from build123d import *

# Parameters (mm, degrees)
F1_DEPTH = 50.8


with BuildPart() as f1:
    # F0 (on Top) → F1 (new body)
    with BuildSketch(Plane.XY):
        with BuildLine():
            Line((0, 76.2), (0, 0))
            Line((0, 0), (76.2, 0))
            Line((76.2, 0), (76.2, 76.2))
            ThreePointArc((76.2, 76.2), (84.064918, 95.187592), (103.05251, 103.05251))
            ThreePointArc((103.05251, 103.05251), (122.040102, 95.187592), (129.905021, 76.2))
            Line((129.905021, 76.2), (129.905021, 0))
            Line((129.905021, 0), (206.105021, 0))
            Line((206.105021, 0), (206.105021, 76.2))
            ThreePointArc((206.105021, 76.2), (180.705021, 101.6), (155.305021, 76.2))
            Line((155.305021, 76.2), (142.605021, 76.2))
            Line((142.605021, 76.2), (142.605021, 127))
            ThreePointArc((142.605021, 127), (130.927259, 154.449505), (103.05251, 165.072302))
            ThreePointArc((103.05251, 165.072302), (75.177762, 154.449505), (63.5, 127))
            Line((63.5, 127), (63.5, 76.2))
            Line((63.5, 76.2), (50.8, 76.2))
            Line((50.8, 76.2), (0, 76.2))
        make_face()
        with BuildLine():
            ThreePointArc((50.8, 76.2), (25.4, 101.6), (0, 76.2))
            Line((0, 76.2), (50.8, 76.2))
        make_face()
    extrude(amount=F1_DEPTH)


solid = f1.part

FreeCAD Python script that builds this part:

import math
import FreeCAD as App
import Part
import Sketcher
Q = App.Units.Quantity

doc = App.newDocument("Part")
body = doc.addObject("PartDesign::Body", "Body")

# Sketch on XY plane
sketch1 = body.newObject("Sketcher::SketchObject", "Sketch")
sketch1.AttachmentSupport = (doc.getObject("XY_Plane"), [""])
sketch1.MapMode = "FlatFace"
sketch1.addGeometry([
    Part.LineSegment(App.Vector(0, 76, 0), App.Vector(0, 0, 0)),  # 0
    Part.LineSegment(App.Vector(0, 0, 0), App.Vector(76, 0, 0)),  # 1
    Part.LineSegment(App.Vector(76, 0, 0), App.Vector(76, 76, 0)),  # 2
    Part.ArcOfCircle(Part.Circle(App.Vector(103, 76, 0), App.Vector(0, 0, 1), 27), math.radians(90), math.radians(180)),  # 3
    Part.ArcOfCircle(Part.Circle(App.Vector(103, 76, 0), App.Vector(0, 0, 1), 27), math.radians(0), math.radians(90)),  # 4
    Part.LineSegment(App.Vector(130, 76, 0), App.Vector(130, 0, 0)),  # 5
    Part.LineSegment(App.Vector(130, 0, 0), App.Vector(206, 0, 0)),  # 6
    Part.LineSegment(App.Vector(206, 0, 0), App.Vector(206, 76, 0)),  # 7
    Part.ArcOfCircle(Part.Circle(App.Vector(181, 76, 0), App.Vector(0, 0, 1), 25), math.radians(0), math.radians(180)),  # 8
    Part.LineSegment(App.Vector(155, 76, 0), App.Vector(143, 76, 0)),  # 9
    Part.LineSegment(App.Vector(143, 76, 0), App.Vector(143, 127, 0)),  # 10
    Part.ArcOfCircle(Part.Circle(App.Vector(105, 127, 0), App.Vector(0, 0, 1), 38), math.radians(0), math.radians(92)),  # 11
    Part.ArcOfCircle(Part.Circle(App.Vector(102, 127, 0), App.Vector(0, 0, 1), 38), math.radians(88), math.radians(180)),  # 12
    Part.LineSegment(App.Vector(64, 127, 0), App.Vector(64, 76, 0)),  # 13
    Part.LineSegment(App.Vector(64, 76, 0), App.Vector(51, 76, 0)),  # 14
    Part.ArcOfCircle(Part.Circle(App.Vector(25, 76, 0), App.Vector(0, 0, 1), 25), math.radians(0), math.radians(180)),  # 15
], False)
sketch1.addConstraint([
    Sketcher.Constraint("Coincident", 0, 2, 1, 1),
    Sketcher.Constraint("Coincident", 1, 2, 2, 1),
    Sketcher.Constraint("Tangent", 2, 2, 3, 2),
    Sketcher.Constraint("Tangent", 3, 1, 4, 2),
    Sketcher.Constraint("Tangent", 4, 1, 5, 1),
    Sketcher.Constraint("Coincident", 5, 2, 6, 1),
    Sketcher.Constraint("Coincident", 6, 2, 7, 1),
    Sketcher.Constraint("Tangent", 7, 2, 8, 1),
    Sketcher.Constraint("Coincident", 8, 2, 9, 1),
    Sketcher.Constraint("Coincident", 9, 2, 10, 1),
    Sketcher.Constraint("Tangent", 10, 2, 11, 1),
    Sketcher.Constraint("Coincident", 11, 2, 12, 1),
    Sketcher.Constraint("Tangent", 12, 2, 13, 1),
    Sketcher.Constraint("Coincident", 13, 2, 14, 1),
    Sketcher.Constraint("Coincident", 14, 2, 15, 1),
    Sketcher.Constraint("Tangent", 15, 2, 0, 1),
    Sketcher.Constraint("Vertical", 0),
    Sketcher.Constraint("Horizontal", 1),
    Sketcher.Constraint("Vertical", 2),
    Sketcher.Constraint("Vertical", 5),
    Sketcher.Constraint("Horizontal", 6),
    Sketcher.Constraint("Vertical", 7),
    Sketcher.Constraint("Horizontal", 9),
    Sketcher.Constraint("Vertical", 10),
    Sketcher.Constraint("Vertical", 13),
    Sketcher.Constraint("Horizontal", 14),
    Sketcher.Constraint("Coincident", 0, 2, -1, 1),
    Sketcher.Constraint("Equal", 3, 4),
    Sketcher.Constraint("Equal", 11, 12),
    Sketcher.Constraint("Equal", 8, 15),
    Sketcher.Constraint("PointOnObject", 5, 2, -1),
    Sketcher.Constraint("Horizontal", 4, 3, 8, 3),
    Sketcher.Constraint("Horizontal", 11, 3, 12, 3),
    Sketcher.Constraint("Horizontal", 8, 3, 15, 3),
    Sketcher.Constraint("Horizontal", 7, 2, 8, 2),
    Sketcher.Constraint("Horizontal", 9, 2, 13, 2),
    Sketcher.Constraint("Vertical", 4, 3, 3, 1),
    Sketcher.Constraint("Vertical", 3, 1, 11, 2),
    Sketcher.Constraint("Equal", 1, 6),
    Sketcher.Constraint("Equal", 6, 0),
    Sketcher.Constraint("Radius", 8, Q("1 in")),
    Sketcher.Constraint("Radius", 11, Q("1.5 in")),
    Sketcher.Constraint("DistanceX", 1, 1, 1, 2, Q("3 in")),
    Sketcher.Constraint("DistanceY", 10, 1, 10, 2, Q("2 in")),
    Sketcher.Constraint("DistanceX", 9, 2, 9, 1, Q("0.5 in")),
    Sketcher.Constraint("Radius", 3, 26.85251),
])
pad1 = body.newObject("PartDesign::Pad", "Pad")
pad1.Profile = sketch1
pad1.Length = Q("2 in")

doc.recompute()
